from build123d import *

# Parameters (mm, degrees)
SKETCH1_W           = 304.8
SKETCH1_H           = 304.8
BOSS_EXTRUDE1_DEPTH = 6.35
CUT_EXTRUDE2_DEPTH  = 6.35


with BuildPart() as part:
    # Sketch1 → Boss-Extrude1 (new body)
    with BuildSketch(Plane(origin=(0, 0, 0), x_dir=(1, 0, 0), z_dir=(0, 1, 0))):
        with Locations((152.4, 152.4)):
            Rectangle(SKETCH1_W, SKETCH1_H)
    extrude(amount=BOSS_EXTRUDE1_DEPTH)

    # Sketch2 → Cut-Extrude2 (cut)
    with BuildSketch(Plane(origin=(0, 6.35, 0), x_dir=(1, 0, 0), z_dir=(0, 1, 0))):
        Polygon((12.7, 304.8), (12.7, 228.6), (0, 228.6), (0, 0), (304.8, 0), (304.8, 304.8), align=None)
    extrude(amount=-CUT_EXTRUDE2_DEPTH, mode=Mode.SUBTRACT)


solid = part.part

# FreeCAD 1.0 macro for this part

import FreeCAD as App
import Part
import Sketcher
from FreeCAD import Vector
Q = App.Units.Quantity

doc = App.newDocument("Part")
params = doc.addObject("Spreadsheet::Sheet", "Params")
for row, (alias, value) in enumerate([
    ("sketch1_width", "12 in"),
    ("pad1_length", "0.25 in"),
    ("sketch2_width", "12 in"),
    ("sketch2_height", "3 in"),
    ("sketch2_width2", "0.5 in"),
    ("pocket1_length", "0.25 in"),
], start=1):
    params.set(f"A{row}", alias)
    params.set(f"B{row}", "=" + value)
    params.setAlias(f"B{row}", alias)

body = doc.addObject("PartDesign::Body", "Body")

# Sketch on XZ plane
sketch1 = doc.addObject("Sketcher::SketchObject", "Sketch")
body.addObject(sketch1)
sketch1.AttachmentSupport = (doc.XZ_Plane, [""])
sketch1.MapMode = "FlatFace"
sketch1.addGeometry([
    Part.LineSegment(Vector(0, -304.8, 0), Vector(0, 0, 0)),
    Part.LineSegment(Vector(0, 0, 0), Vector(304.8, 0, 0)),
    Part.LineSegment(Vector(304.8, 0, 0), Vector(304.8, -304.8, 0)),
    Part.LineSegment(Vector(304.8, -304.8, 0), Vector(0, -304.8, 0)),
], False)
sketch1.addConstraint([
    Sketcher.Constraint("Coincident", 0, 2, 1, 1),
    Sketcher.Constraint("Coincident", 1, 2, 2, 1),
    Sketcher.Constraint("Coincident", 2, 2, 3, 1),
    Sketcher.Constraint("Coincident", 3, 2, 0, 1),
    Sketcher.Constraint("Vertical", 0),
    Sketcher.Constraint("Horizontal", 1),
    Sketcher.Constraint("Vertical", 2),
    Sketcher.Constraint("Horizontal", 3),
    Sketcher.Constraint("Coincident", 0, 2, -1, 1),
    Sketcher.Constraint("Equal", 3, 0),
    Sketcher.Constraint("DistanceX", 1, 1, 1, 2, Q("12 in")),
])
sketch1.setExpression("Constraints[10]", "Params.sketch1_width")
pad1 = doc.addObject("PartDesign::Pad", "Pad")
body.addObject(pad1)
pad1.Profile = sketch1
pad1.setExpression("Length", "Params.pad1_length")
pad1.Reversed = True

# Sketch on XZ plane
sketch2 = doc.addObject("Sketcher::SketchObject", "Sketch001")
body.addObject(sketch2)
sketch2.AttachmentSupport = (doc.XZ_Plane, [""])
sketch2.MapMode = "FlatFace"
sketch2.AttachmentOffset = App.Placement(Vector(0, 0, -0.25 * 25.4), App.Rotation())
sketch2.addGeometry([
    Part.LineSegment(Vector(12.7, -304.8, 0), Vector(12.7, -228.6, 0)),  # 0
    Part.LineSegment(Vector(12.7, -228.6, 0), Vector(0, -228.6, 0)),  # 1
    Part.LineSegment(Vector(0, -228.6, 0), Vector(0, 0, 0)),  # 2
    Part.LineSegment(Vector(0, 0, 0), Vector(304.8, 0, 0)),  # 3
    Part.LineSegment(Vector(304.8, 0, 0), Vector(304.8, -304.8, 0)),  # 4
    Part.LineSegment(Vector(304.8, -304.8, 0), Vector(12.7, -304.8, 0)),  # 5
], False)
sketch2.addConstraint([
    Sketcher.Constraint("Coincident", 0, 2, 1, 1),
    Sketcher.Constraint("Coincident", 1, 2, 2, 1),
    Sketcher.Constraint("Coincident", 2, 2, 3, 1),
    Sketcher.Constraint("Coincident", 3, 2, 4, 1),
    Sketcher.Constraint("Coincident", 4, 2, 5, 1),
    Sketcher.Constraint("Coincident", 5, 2, 0, 1),
    Sketcher.Constraint("Vertical", 0),
    Sketcher.Constraint("Horizontal", 1),
    Sketcher.Constraint("Vertical", 2),
    Sketcher.Constraint("Horizontal", 3),
    Sketcher.Constraint("Vertical", 4),
    Sketcher.Constraint("Horizontal", 5),
    Sketcher.Constraint("Coincident", 2, 2, -1, 1),
    Sketcher.Constraint("Equal", 3, 4),
    Sketcher.Constraint("DistanceX", 3, 1, 3, 2, Q("12 in")),
    Sketcher.Constraint("DistanceY", 0, 1, 0, 2, Q("3 in")),
    Sketcher.Constraint("DistanceX", 1, 2, 1, 1, Q("0.5 in")),
])
sketch2.setExpression("Constraints[14]", "Params.sketch2_width")
sketch2.setExpression("Constraints[15]", "Params.sketch2_height")
sketch2.setExpression("Constraints[16]", "Params.sketch2_width2")
pocket1 = doc.addObject("PartDesign::Pocket", "Pocket")
body.addObject(pocket1)
pocket1.Profile = sketch2
pocket1.setExpression("Length", "Params.pocket1_length")
pocket1.Reversed = True

doc.recompute()
